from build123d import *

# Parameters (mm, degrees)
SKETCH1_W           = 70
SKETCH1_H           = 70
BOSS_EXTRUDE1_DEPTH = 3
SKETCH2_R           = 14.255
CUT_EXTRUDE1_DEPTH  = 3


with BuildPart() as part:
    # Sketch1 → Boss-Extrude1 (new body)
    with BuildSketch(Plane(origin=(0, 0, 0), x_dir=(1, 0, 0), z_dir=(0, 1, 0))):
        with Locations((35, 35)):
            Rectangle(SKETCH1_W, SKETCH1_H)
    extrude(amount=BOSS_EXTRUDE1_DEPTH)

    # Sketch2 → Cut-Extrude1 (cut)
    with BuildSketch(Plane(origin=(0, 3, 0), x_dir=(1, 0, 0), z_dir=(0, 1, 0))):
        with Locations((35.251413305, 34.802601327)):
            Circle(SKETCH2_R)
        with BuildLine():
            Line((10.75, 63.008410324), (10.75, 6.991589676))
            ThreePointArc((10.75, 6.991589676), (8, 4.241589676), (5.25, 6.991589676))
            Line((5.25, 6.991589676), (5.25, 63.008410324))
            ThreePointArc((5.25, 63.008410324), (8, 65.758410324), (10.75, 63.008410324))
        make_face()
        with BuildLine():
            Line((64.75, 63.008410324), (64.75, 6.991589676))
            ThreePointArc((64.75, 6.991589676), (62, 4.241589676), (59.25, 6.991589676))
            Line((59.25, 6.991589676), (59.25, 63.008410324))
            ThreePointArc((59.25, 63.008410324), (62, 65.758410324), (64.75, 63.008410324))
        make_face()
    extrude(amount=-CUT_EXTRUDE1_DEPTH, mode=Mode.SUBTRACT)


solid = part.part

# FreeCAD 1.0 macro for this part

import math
import FreeCAD as App
import Part
import Sketcher

doc = App.newDocument("Part")
params = doc.addObject("Spreadsheet::Sheet", "Params")
for row, (alias, value) in enumerate([
    ("sketch1_width", "70 mm"),
    ("pad1_length", "3 mm"),
    ("sketch2_diameter", "28.51 mm"),
    ("sketch2_radius", "2.75 mm"),
    ("pocket1_length", "3 mm"),
], start=1):
    params.set(f"A{row}", alias)
    params.set(f"B{row}", "=" + value)
    params.setAlias(f"B{row}", alias)

body = doc.addObject("PartDesign::Body", "Body")

sketch1 = body.newObject("Sketcher::SketchObject", "Sketch")
sketch1.AttachmentSupport = (doc.getObject("XZ_Plane"), [""])
sketch1.MapMode = "FlatFace"
sketch1.addGeometry(Part.LineSegment(App.Vector(0, -70, 0), App.Vector(0, 0, 0)), False)
sketch1.addGeometry(Part.LineSegment(App.Vector(0, 0, 0), App.Vector(70, 0, 0)), False)
sketch1.addGeometry(Part.LineSegment(App.Vector(70, 0, 0), App.Vector(70, -70, 0)), False)
sketch1.addGeometry(Part.LineSegment(App.Vector(70, -70, 0), App.Vector(0, -70, 0)), False)
sketch1.addConstraint(Sketcher.Constraint("Coincident", 0, 2, 1, 1))
sketch1.addConstraint(Sketcher.Constraint("Coincident", 1, 2, 2, 1))
sketch1.addConstraint(Sketcher.Constraint("Coincident", 2, 2, 3, 1))
sketch1.addConstraint(Sketcher.Constraint("Coincident", 3, 2, 0, 1))
sketch1.addConstraint(Sketcher.Constraint("Vertical", 0))
sketch1.addConstraint(Sketcher.Constraint("Horizontal", 1))
sketch1.addConstraint(Sketcher.Constraint("Vertical", 2))
sketch1.addConstraint(Sketcher.Constraint("Horizontal", 3))
sketch1.addConstraint(Sketcher.Constraint("Coincident", 0, 2, -1, 1))
sketch1.addConstraint(Sketcher.Constraint("Equal", 3, 0))
sketch1.addConstraint(Sketcher.Constraint("DistanceX", 1, 1, 1, 2, 70.0))
sketch1.setExpression("Constraints[10]", "Params.sketch1_width")
pad1 = body.newObject("PartDesign::Pad", "Pad")
pad1.Profile = sketch1
pad1.setExpression("Length", "Params.pad1_length")
pad1.Reversed = True

sketch2 = body.newObject("Sketcher::SketchObject", "Sketch001")
sketch2.AttachmentSupport = (doc.getObject("XZ_Plane"), [""])
sketch2.MapMode = "FlatFace"
sketch2.AttachmentOffset = App.Placement(App.Vector(0, 0, -3), App.Rotation())
sketch2.addGeometry(Part.Circle(App.Vector(35.251413, -34.802601, 0), App.Vector(0, 0, 1), 14.255), False)
sketch2.addGeometry(Part.LineSegment(App.Vector(10.75, -6.99159, 0), App.Vector(10.75, -63.00841, 0)), False)
sketch2.addGeometry(Part.ArcOfCircle(Part.Circle(App.Vector(8, -63.00841, 0), App.Vector(0, 0, 1), 2.75), math.radians(180), math.radians(360)), False)
sketch2.addGeometry(Part.LineSegment(App.Vector(5.25, -63.00841, 0), App.Vector(5.25, -6.99159, 0)), False)
sketch2.addGeometry(Part.ArcOfCircle(Part.Circle(App.Vector(8, -6.99159, 0), App.Vector(0, 0, 1), 2.75), math.radians(0), math.radians(180)), False)
sketch2.addGeometry(Part.LineSegment(App.Vector(64.75, -6.99159, 0), App.Vector(64.75, -63.00841, 0)), False)
sketch2.addGeometry(Part.ArcOfCircle(Part.Circle(App.Vector(62, -63.00841, 0), App.Vector(0, 0, 1), 2.75), math.radians(180), math.radians(360)), False)
sketch2.addGeometry(Part.LineSegment(App.Vector(59.25, -63.00841, 0), App.Vector(59.25, -6.99159, 0)), False)
sketch2.addGeometry(Part.ArcOfCircle(Part.Circle(App.Vector(62, -6.99159, 0), App.Vector(0, 0, 1), 2.75), math.radians(0), math.radians(180)), False)
sketch2.addConstraint(Sketcher.Constraint("Tangent", 1, 2, 2, 2))
sketch2.addConstraint(Sketcher.Constraint("Tangent", 2, 1, 3, 1))
sketch2.addConstraint(Sketcher.Constraint("Tangent", 3, 2, 4, 2))
sketch2.addConstraint(Sketcher.Constraint("Tangent", 4, 1, 1, 1))
sketch2.addConstraint(Sketcher.Constraint("Tangent", 5, 2, 6, 2))
sketch2.addConstraint(Sketcher.Constraint("Tangent", 6, 1, 7, 1))
sketch2.addConstraint(Sketcher.Constraint("Tangent", 7, 2, 8, 2))
sketch2.addConstraint(Sketcher.Constraint("Tangent", 8, 1, 5, 1))
sketch2.addConstraint(Sketcher.Constraint("Vertical", 1))
sketch2.addConstraint(Sketcher.Constraint("Vertical", 3))
sketch2.addConstraint(Sketcher.Constraint("Vertical", 5))
sketch2.addConstraint(Sketcher.Constraint("Vertical", 7))
sketch2.addConstraint(Sketcher.Constraint("Equal", 4, 6))
sketch2.addConstraint(Sketcher.Constraint("Horizontal", 2, 3, 6, 3))
sketch2.addConstraint(Sketcher.Constraint("Horizontal", 4, 3, 8, 3))
sketch2.addConstraint(Sketcher.Constraint("Diameter", 0, 28.51))
sketch2.addConstraint(Sketcher.Constraint("Radius", 2, 2.75))
sketch2.addConstraint(Sketcher.Constraint("DistanceX", -1, 1, 2, 3, 8.0))
sketch2.addConstraint(Sketcher.Constraint("DistanceX", -1, 1, 6, 3, 62.0))
sketch2.addConstraint(Sketcher.Constraint("DistanceY", 1, 2, 1, 1, 56.016821))
sketch2.addConstraint(Sketcher.Constraint("DistanceY", 0, 3, -1, 1, 34.802601))
sketch2.addConstraint(Sketcher.Constraint("DistanceY", 2, 3, -1, 1, 63.00841))
sketch2.addConstraint(Sketcher.Constraint("DistanceX", -1, 1, 0, 3, 35.251413))
sketch2.setExpression("Constraints[15]", "Params.sketch2_diameter")
sketch2.setExpression("Constraints[16]", "Params.sketch2_radius")
pocket1 = body.newObject("PartDesign::Pocket", "Pocket")
pocket1.Profile = sketch2
pocket1.setExpression("Length", "Params.pocket1_length")
pocket1.Reversed = True

doc.recompute()
